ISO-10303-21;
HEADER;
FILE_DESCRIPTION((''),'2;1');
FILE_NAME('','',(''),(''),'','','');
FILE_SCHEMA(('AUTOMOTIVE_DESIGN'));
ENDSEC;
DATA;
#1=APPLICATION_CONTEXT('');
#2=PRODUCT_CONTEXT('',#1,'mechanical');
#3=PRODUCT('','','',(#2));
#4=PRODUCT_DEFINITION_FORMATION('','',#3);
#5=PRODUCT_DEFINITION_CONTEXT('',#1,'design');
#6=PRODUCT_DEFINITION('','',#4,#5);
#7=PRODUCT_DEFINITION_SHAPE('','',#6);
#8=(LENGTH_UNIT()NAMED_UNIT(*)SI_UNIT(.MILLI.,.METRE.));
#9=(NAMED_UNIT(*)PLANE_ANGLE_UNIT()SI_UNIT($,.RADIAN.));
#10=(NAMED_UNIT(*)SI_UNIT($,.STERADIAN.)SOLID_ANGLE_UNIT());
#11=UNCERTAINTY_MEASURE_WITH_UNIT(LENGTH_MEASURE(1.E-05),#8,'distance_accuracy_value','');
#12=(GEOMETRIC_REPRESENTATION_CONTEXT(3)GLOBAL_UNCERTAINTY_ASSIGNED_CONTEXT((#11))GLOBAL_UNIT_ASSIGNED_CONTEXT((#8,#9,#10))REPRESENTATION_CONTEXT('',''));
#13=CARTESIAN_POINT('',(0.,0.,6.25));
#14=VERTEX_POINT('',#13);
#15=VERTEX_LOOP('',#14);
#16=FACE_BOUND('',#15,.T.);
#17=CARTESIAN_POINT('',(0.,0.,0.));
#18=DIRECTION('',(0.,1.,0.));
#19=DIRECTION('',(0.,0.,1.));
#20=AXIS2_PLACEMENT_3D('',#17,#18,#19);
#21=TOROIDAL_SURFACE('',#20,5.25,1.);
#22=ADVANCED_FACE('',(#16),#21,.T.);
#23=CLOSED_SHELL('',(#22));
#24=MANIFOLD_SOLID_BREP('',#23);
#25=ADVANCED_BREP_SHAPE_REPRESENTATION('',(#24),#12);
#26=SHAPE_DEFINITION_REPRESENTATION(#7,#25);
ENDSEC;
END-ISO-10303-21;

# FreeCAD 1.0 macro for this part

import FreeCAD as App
import Part
import Sketcher

V = App.Vector
Q = App.Units.Quantity

doc = App.newDocument("Part")
params = doc.addObject("Spreadsheet::Sheet", "Params")
for row, (alias, value) in enumerate([
    ("sketch1_diameter", "2 mm"),
    ("revolution_angle", "360 deg"),
], start=1):
    params.set(f"A{row}", alias)
    params.set(f"B{row}", "=" + value)
    params.setAlias(f"B{row}", alias)

body = doc.addObject("PartDesign::Body", "Body")

sketch1 = body.newObject("Sketcher::SketchObject", "Sketch")
sketch1.AttachmentSupport = (doc.getObject("XY_Plane"), [""])
sketch1.MapMode = "FlatFace"
sketch1.addGeometry(Part.Circle(V(5.2, 0, 0), V(0, 0, 1), 1), False)
sketch1.addConstraint([
    Sketcher.Constraint("PointOnObject", 0, 3, -1),
    Sketcher.Constraint("Diameter", 0, Q("2 mm")),
    Sketcher.Constraint("DistanceX", -1, 1, 0, 3, Q("5.25 mm")),
])
sketch1.setExpression("Constraints[1]", "Params.sketch1_diameter")
revolution = body.newObject("PartDesign::Revolution", "Revolution")
revolution.Profile = sketch1
revolution.ReferenceAxis = (sketch1, ["V_Axis"])
revolution.setExpression("Angle", "Params.revolution_angle")

doc.recompute()
